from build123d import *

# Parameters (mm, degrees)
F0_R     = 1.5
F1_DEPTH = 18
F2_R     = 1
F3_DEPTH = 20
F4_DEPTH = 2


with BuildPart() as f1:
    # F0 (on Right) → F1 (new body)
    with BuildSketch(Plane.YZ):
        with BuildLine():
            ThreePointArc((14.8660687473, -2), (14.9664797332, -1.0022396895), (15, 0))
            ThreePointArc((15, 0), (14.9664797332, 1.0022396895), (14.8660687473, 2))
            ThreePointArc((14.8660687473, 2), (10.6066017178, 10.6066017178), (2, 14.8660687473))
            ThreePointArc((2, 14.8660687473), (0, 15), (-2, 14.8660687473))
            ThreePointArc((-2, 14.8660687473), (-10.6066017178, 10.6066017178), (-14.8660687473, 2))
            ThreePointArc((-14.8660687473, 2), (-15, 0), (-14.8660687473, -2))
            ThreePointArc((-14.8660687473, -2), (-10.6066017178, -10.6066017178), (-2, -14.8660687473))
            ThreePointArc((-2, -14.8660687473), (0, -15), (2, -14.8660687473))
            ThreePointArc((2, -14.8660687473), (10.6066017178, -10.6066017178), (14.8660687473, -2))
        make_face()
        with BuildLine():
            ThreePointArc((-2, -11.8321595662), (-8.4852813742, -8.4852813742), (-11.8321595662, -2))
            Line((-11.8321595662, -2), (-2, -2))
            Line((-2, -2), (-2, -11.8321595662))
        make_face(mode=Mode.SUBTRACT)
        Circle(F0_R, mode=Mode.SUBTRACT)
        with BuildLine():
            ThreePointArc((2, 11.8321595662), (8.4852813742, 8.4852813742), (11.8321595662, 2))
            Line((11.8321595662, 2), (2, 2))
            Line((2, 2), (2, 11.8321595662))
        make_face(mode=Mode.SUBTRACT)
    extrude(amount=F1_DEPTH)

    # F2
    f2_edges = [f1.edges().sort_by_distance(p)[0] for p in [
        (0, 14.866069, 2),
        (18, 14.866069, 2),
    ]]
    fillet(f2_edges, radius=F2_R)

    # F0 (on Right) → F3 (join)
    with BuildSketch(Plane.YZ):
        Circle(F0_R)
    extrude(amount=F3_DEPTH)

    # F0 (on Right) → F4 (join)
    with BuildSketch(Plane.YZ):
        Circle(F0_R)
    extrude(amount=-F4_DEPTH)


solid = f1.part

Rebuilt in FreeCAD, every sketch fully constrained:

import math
import FreeCAD as App
import Part
import Sketcher
from FreeCAD import Vector


def edges_at(feature, points):
    """Names of the edges that pass closest to the given points."""
    edges = feature.Shape.Edges
    near = lambda p: min(range(len(edges)), key=lambda i: edges[i].distToShape(Part.Vertex(*p))[0])
    return sorted({f"Edge{near(p) + 1}" for p in points})

doc = App.newDocument("Part")
params = doc.addObject("Spreadsheet::Sheet", "Params")
for row, (alias, value) in enumerate([
    ("sketch1_diameter", "3 mm"),
    ("sketch1_radius", "15 mm"),
    ("sketch1_radius2", "12 mm"),
    ("pad1_length", "18 mm"),
    ("fillet_radius", "1 mm"),
    ("sketch2_diameter", "3 mm"),
    ("pad2_length", "20 mm"),
    ("sketch3_diameter", "3 mm"),
    ("pad3_length", "2 mm"),
], start=1):
    params.set(f"A{row}", alias)
    params.set(f"B{row}", "=" + value)
    params.setAlias(f"B{row}", alias)

body = doc.addObject("PartDesign::Body", "Body")

# Sketch on YZ plane
sketch1 = doc.addObject("Sketcher::SketchObject", "Sketch")
body.addObject(sketch1)
sketch1.AttachmentSupport = (doc.YZ_Plane, [""])
sketch1.MapMode = "FlatFace"
sketch1.addGeometry(Part.ArcOfCircle(Part.Circle(Vector(0, 0, 0), Vector(0, 0, 1), 15), math.radians(-7.66), math.radians(0)), False)
sketch1.addGeometry(Part.ArcOfCircle(Part.Circle(Vector(0, 0, 0), Vector(0, 0, 1), 15), math.radians(0), math.radians(7.66)), False)
sketch1.addGeometry(Part.ArcOfCircle(Part.Circle(Vector(0, 0, 0), Vector(0, 0, 1), 15), math.radians(8), math.radians(82)), False)
sketch1.addGeometry(Part.ArcOfCircle(Part.Circle(Vector(0, 0, 0), Vector(0, 0, 1), 15), math.radians(82.34), math.radians(97.66)), False)
sketch1.addGeometry(Part.ArcOfCircle(Part.Circle(Vector(0, 0, 0), Vector(0, 0, 1), 15), math.radians(98), math.radians(172)), False)
sketch1.addGeometry(Part.ArcOfCircle(Part.Circle(Vector(0, 0, 0), Vector(0, 0, 1), 15), math.radians(172.34), math.radians(187.66)), False)
sketch1.addGeometry(Part.ArcOfCircle(Part.Circle(Vector(0, 0, 0), Vector(0, 0, 1), 15), math.radians(-172), math.radians(-98)), False)
sketch1.addGeometry(Part.ArcOfCircle(Part.Circle(Vector(0, 0, 0), Vector(0, 0, 1), 15), math.radians(-97.66), math.radians(-82.34)), False)
sketch1.addGeometry(Part.ArcOfCircle(Part.Circle(Vector(0, 0, 0), Vector(0, 0, 1), 15), math.radians(-82), math.radians(-8)), False)
sketch1.addGeometry(Part.LineSegment(Vector(-2, -2, 0), Vector(-2, -11.8, 0)), False)
sketch1.addGeometry(Part.ArcOfCircle(Part.Circle(Vector(0, 0, 0), Vector(0, 0, 1), 12), math.radians(-170), math.radians(-100)), False)
sketch1.addGeometry(Part.LineSegment(Vector(-11.8, -2, 0), Vector(-2, -2, 0)), False)
sketch1.addGeometry(Part.Circle(Vector(0, 0, 0), Vector(0, 0, 1), 1.5), False)
sketch1.addGeometry(Part.LineSegment(Vector(2, 2, 0), Vector(2, 11.8, 0)), False)
sketch1.addGeometry(Part.ArcOfCircle(Part.Circle(Vector(0, 0, 0), Vector(0, 0, 1), 12), math.radians(10), math.radians(80)), False)
sketch1.addGeometry(Part.LineSegment(Vector(11.8, 2, 0), Vector(2, 2, 0)), False)
sketch1.addConstraint(Sketcher.Constraint("Tangent", 0, 2, 1, 1))
sketch1.addConstraint(Sketcher.Constraint("Tangent", 1, 2, 2, 1))
sketch1.addConstraint(Sketcher.Constraint("Tangent", 2, 2, 3, 1))
sketch1.addConstraint(Sketcher.Constraint("Tangent", 3, 2, 4, 1))
sketch1.addConstraint(Sketcher.Constraint("Tangent", 4, 2, 5, 1))
sketch1.addConstraint(Sketcher.Constraint("Tangent", 5, 2, 6, 1))
sketch1.addConstraint(Sketcher.Constraint("Tangent", 6, 2, 7, 1))
sketch1.addConstraint(Sketcher.Constraint("Tangent", 7, 2, 8, 1))
sketch1.addConstraint(Sketcher.Constraint("Tangent", 8, 2, 0, 1))
sketch1.addConstraint(Sketcher.Constraint("Coincident", 9, 2, 10, 2))
sketch1.addConstraint(Sketcher.Constraint("Coincident", 10, 1, 11, 1))
sketch1.addConstraint(Sketcher.Constraint("Coincident", 11, 2, 9, 1))
sketch1.addConstraint(Sketcher.Constraint("Coincident", 13, 2, 14, 2))
sketch1.addConstraint(Sketcher.Constraint("Coincident", 14, 1, 15, 1))
sketch1.addConstraint(Sketcher.Constraint("Coincident", 15, 2, 13, 1))
sketch1.addConstraint(Sketcher.Constraint("Vertical", 9))
sketch1.addConstraint(Sketcher.Constraint("Horizontal", 11))
sketch1.addConstraint(Sketcher.Constraint("Vertical", 13))
sketch1.addConstraint(Sketcher.Constraint("Horizontal", 15))
sketch1.addConstraint(Sketcher.Constraint("Coincident", 0, 3, -1, 1))
sketch1.addConstraint(Sketcher.Constraint("Coincident", 2, 3, -1, 1))
sketch1.addConstraint(Sketcher.Constraint("Coincident", 4, 3, -1, 1))
sketch1.addConstraint(Sketcher.Constraint("Coincident", 6, 3, -1, 1))
sketch1.addConstraint(Sketcher.Constraint("Coincident", 10, 3, -1, 1))
sketch1.addConstraint(Sketcher.Constraint("Coincident", 12, 3, -1, 1))
sketch1.addConstraint(Sketcher.Constraint("Coincident", 14, 3, -1, 1))
sketch1.addConstraint(Sketcher.Constraint("Equal", 10, 14))
sketch1.addConstraint(Sketcher.Constraint("Symmetric", 11, 2, 15, 2, -1, 1))
sketch1.addConstraint(Sketcher.Constraint("PointOnObject", 0, 2, -1))
sketch1.addConstraint(Sketcher.Constraint("Horizontal", 2, 2, 3, 2))
sketch1.addConstraint(Sketcher.Constraint("Horizontal", 1, 2, 4, 2))
sketch1.addConstraint(Sketcher.Constraint("Horizontal", 6, 2, 7, 2))
sketch1.addConstraint(Sketcher.Constraint("Horizontal", 5, 2, 8, 2))
sketch1.addConstraint(Sketcher.Constraint("Horizontal", 8, 2, 10, 1))
sketch1.addConstraint(Sketcher.Constraint("Horizontal", 4, 2, 14, 1))
sketch1.addConstraint(Sketcher.Constraint("Vertical", 3, 2, 6, 2))
sketch1.addConstraint(Sketcher.Constraint("Vertical", 6, 2, 9, 2))
sketch1.addConstraint(Sketcher.Constraint("Equal", 15, 9))
sketch1.addConstraint(Sketcher.Constraint("Diameter", 12, 3.0))
sketch1.addConstraint(Sketcher.Constraint("Radius", 0, 15.0))
sketch1.addConstraint(Sketcher.Constraint("Radius", 10, 12.0))
sketch1.addConstraint(Sketcher.Constraint("DistanceY", -1, 1, 1, 2, 2.0))
sketch1.setExpression("Constraints[38]", "Params.sketch1_diameter")
sketch1.setExpression("Constraints[39]", "Params.sketch1_radius")
sketch1.setExpression("Constraints[40]", "Params.sketch1_radius2")
pad1 = doc.addObject("PartDesign::Pad", "Pad")
body.addObject(pad1)
pad1.Profile = sketch1
pad1.setExpression("Length", "Params.pad1_length")
doc.recompute()

fillet = doc.addObject("PartDesign::Fillet", "Fillet")
body.addObject(fillet)
fillet.Base = (pad1, edges_at(pad1, [(0, 14.966, 1.002), (18, 14.966, 1.002)]))
fillet.setExpression("Radius", "Params.fillet_radius")

# Sketch on YZ plane
sketch2 = doc.addObject("Sketcher::SketchObject", "Sketch001")
body.addObject(sketch2)
sketch2.AttachmentSupport = (doc.YZ_Plane, [""])
sketch2.MapMode = "FlatFace"
sketch2.addGeometry(Part.Circle(Vector(0, 0, 0), Vector(0, 0, 1), 1.5), False)
sketch2.addConstraint(Sketcher.Constraint("Coincident", 0, 3, -1, 1))
sketch2.addConstraint(Sketcher.Constraint("Diameter", 0, 3.0))
sketch2.setExpression("Constraints[1]", "Params.sketch2_diameter")
pad2 = doc.addObject("PartDesign::Pad", "Pad001")
body.addObject(pad2)
pad2.Profile = sketch2
pad2.setExpression("Length", "Params.pad2_length")

# Sketch on YZ plane
sketch3 = doc.addObject("Sketcher::SketchObject", "Sketch002")
body.addObject(sketch3)
sketch3.AttachmentSupport = (doc.YZ_Plane, [""])
sketch3.MapMode = "FlatFace"
sketch3.addGeometry(Part.Circle(Vector(0, 0, 0), Vector(0, 0, 1), 1.5), False)
sketch3.addConstraint(Sketcher.Constraint("Coincident", 0, 3, -1, 1))
sketch3.addConstraint(Sketcher.Constraint("Diameter", 0, 3.0))
sketch3.setExpression("Constraints[1]", "Params.sketch3_diameter")
pad3 = doc.addObject("PartDesign::Pad", "Pad002")
body.addObject(pad3)
pad3.Profile = sketch3
pad3.setExpression("Length", "Params.pad3_length")
pad3.Reversed = True

doc.recompute()
